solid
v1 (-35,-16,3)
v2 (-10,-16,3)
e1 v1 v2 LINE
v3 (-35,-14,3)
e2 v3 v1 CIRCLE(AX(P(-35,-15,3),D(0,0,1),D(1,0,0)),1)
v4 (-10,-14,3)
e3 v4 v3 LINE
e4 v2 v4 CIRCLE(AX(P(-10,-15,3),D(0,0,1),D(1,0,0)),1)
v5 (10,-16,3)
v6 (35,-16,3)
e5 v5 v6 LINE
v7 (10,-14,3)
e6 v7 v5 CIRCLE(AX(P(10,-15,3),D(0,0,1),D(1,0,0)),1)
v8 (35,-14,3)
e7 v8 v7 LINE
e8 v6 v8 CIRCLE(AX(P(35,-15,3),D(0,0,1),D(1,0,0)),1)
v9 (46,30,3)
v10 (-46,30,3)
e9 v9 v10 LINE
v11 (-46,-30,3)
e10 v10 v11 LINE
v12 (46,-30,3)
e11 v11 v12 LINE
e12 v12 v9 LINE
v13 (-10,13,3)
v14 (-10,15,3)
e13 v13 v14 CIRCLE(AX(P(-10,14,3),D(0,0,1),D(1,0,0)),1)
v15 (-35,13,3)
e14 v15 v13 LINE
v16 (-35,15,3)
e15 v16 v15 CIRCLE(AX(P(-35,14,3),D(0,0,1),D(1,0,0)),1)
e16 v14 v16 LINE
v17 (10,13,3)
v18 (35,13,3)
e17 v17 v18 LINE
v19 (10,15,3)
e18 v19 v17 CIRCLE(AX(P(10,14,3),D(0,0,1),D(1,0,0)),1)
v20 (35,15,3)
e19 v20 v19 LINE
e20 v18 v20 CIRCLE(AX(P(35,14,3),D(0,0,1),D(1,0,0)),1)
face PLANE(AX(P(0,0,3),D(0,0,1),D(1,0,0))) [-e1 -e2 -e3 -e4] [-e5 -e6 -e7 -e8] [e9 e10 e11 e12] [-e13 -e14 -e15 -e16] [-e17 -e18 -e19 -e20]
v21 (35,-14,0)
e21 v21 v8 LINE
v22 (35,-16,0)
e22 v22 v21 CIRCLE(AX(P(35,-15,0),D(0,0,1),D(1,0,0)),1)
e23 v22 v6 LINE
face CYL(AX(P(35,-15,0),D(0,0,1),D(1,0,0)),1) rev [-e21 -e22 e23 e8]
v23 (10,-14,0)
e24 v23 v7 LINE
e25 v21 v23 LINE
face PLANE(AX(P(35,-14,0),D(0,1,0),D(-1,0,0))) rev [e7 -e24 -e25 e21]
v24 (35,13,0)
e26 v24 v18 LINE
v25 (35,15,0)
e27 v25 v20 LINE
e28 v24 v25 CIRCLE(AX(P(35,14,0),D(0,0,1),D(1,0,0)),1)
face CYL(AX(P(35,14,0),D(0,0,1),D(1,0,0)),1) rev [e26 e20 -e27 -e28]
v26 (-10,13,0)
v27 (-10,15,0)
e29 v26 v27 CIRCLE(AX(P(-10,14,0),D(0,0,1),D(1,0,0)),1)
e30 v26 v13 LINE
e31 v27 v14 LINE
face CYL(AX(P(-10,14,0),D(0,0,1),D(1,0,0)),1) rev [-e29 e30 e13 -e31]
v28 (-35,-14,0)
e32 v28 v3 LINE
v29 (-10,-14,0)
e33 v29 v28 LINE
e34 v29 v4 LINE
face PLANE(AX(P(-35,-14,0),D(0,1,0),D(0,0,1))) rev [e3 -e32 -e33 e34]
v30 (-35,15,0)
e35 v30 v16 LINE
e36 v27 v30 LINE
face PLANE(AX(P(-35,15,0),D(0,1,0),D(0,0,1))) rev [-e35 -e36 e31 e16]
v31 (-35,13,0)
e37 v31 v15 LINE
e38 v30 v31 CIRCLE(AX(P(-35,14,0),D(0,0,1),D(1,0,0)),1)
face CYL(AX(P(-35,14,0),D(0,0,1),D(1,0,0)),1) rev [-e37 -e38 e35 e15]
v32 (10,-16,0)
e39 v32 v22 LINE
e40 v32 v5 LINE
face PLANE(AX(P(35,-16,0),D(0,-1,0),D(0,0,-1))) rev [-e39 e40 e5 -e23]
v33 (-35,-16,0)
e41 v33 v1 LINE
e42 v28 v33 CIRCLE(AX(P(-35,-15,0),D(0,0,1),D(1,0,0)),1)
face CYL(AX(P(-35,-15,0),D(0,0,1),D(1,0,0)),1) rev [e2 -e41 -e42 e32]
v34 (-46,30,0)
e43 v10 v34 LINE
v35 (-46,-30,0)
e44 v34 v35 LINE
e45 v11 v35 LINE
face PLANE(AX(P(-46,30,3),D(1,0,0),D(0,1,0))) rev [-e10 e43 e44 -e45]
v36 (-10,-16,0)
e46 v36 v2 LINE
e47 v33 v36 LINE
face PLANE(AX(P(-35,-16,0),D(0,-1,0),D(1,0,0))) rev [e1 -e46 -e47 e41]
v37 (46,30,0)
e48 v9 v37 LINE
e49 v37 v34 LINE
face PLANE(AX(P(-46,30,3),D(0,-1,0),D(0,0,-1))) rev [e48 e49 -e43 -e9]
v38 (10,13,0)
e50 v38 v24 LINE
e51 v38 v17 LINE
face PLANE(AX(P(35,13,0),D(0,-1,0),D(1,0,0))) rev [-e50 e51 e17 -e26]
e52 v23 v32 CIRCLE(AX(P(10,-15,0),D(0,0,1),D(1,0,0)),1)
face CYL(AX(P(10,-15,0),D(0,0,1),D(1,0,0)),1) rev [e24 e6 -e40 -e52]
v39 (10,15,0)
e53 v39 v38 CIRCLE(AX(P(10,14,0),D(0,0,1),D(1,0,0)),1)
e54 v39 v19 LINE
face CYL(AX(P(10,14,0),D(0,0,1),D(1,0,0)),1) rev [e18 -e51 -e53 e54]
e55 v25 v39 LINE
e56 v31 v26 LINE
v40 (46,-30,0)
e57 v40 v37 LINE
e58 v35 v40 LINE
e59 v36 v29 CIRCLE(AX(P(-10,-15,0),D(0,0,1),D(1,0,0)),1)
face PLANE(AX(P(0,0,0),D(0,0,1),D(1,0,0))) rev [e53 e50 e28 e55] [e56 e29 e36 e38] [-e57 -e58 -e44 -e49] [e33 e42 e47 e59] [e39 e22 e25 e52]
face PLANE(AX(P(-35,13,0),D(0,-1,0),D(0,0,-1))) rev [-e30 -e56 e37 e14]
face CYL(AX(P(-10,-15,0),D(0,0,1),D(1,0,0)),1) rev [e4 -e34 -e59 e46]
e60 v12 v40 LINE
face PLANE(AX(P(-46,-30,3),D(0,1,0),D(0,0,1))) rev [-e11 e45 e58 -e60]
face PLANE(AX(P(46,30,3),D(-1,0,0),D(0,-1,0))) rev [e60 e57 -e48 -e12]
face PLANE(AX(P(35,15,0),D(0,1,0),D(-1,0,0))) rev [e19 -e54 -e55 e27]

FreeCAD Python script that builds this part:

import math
import FreeCAD as App
import Part
import Sketcher
from FreeCAD import Vector
Q = App.Units.Quantity


def add_polygon(sketch, points):
    """Adds a closed chain of lines whose ends are joined by coincident constraints."""
    first, n = sketch.GeometryCount, len(points)
    for a, b in zip(points, points[1:] + points[:1]):
        sketch.addGeometry(Part.LineSegment(App.Vector(*a, 0), App.Vector(*b, 0)), False)
    for i in range(n):
        sketch.addConstraint(Sketcher.Constraint("Coincident", first + i, 2, first + (i + 1) % n, 1))

doc = App.newDocument("Part")
body = doc.addObject("PartDesign::Body", "Body")

sketch1 = body.newObject("Sketcher::SketchObject", "Sketch")
sketch1.AttachmentSupport = (doc.getObject("XY_Plane"), [""])
sketch1.MapMode = "FlatFace"
add_polygon(sketch1, [(-46, 30), (-46, -30), (46, -30), (46, 30)])
sketch1.addConstraint(Sketcher.Constraint("Vertical", 0))
sketch1.addConstraint(Sketcher.Constraint("Horizontal", 1))
sketch1.addConstraint(Sketcher.Constraint("Vertical", 2))
sketch1.addConstraint(Sketcher.Constraint("Horizontal", 3))
sketch1.addConstraint(Sketcher.Constraint("Symmetric", 0, 2, 2, 2, -1, 1))
sketch1.addConstraint(Sketcher.Constraint("DistanceX", 1, 1, 1, 2, Q("92 mm")))
sketch1.addConstraint(Sketcher.Constraint("DistanceY", 0, 2, 0, 1, Q("60 mm")))
pad1 = body.newObject("PartDesign::Pad", "Pad")
pad1.Profile = sketch1
pad1.Length = 3

sketch2 = body.newObject("Sketcher::SketchObject", "Sketch001")
sketch2.AttachmentSupport = (doc.getObject("XY_Plane"), [""])
sketch2.MapMode = "FlatFace"
sketch2.AttachmentOffset = App.Placement(Vector(0, 0, 3), App.Rotation())
sketch2.addGeometry(Part.LineSegment(Vector(-10, 15, 0), Vector(-35, 15, 0)), False)
sketch2.addGeometry(Part.ArcOfCircle(Part.Circle(Vector(-35, 14, 0), Vector(0, 0, 1), 1), math.radians(90), math.radians(270)), False)
sketch2.addGeometry(Part.LineSegment(Vector(-35, 13, 0), Vector(-10, 13, 0)), False)
sketch2.addGeometry(Part.ArcOfCircle(Part.Circle(Vector(-10, 14, 0), Vector(0, 0, 1), 1), math.radians(-90), math.radians(90)), False)
sketch2.addGeometry(Part.LineSegment(Vector(-10, -14, 0), Vector(-35, -14, 0)), False)
sketch2.addGeometry(Part.ArcOfCircle(Part.Circle(Vector(-35, -15, 0), Vector(0, 0, 1), 1), math.radians(90), math.radians(270)), False)
sketch2.addGeometry(Part.LineSegment(Vector(-35, -16, 0), Vector(-10, -16, 0)), False)
sketch2.addGeometry(Part.ArcOfCircle(Part.Circle(Vector(-10, -15, 0), Vector(0, 0, 1), 1), math.radians(-90), math.radians(90)), False)
sketch2.addGeometry(Part.LineSegment(Vector(10, 13, 0), Vector(35, 13, 0)), False)
sketch2.addGeometry(Part.ArcOfCircle(Part.Circle(Vector(35, 14, 0), Vector(0, 0, 1), 1), math.radians(-90), math.radians(90)), False)
sketch2.addGeometry(Part.LineSegment(Vector(35, 15, 0), Vector(10, 15, 0)), False)
sketch2.addGeometry(Part.ArcOfCircle(Part.Circle(Vector(10, 14, 0), Vector(0, 0, 1), 1), math.radians(90), math.radians(270)), False)
sketch2.addGeometry(Part.LineSegment(Vector(10, -16, 0), Vector(35, -16, 0)), False)
sketch2.addGeometry(Part.ArcOfCircle(Part.Circle(Vector(35, -15, 0), Vector(0, 0, 1), 1), math.radians(-90), math.radians(90)), False)
sketch2.addGeometry(Part.LineSegment(Vector(35, -14, 0), Vector(10, -14, 0)), False)
sketch2.addGeometry(Part.ArcOfCircle(Part.Circle(Vector(10, -15, 0), Vector(0, 0, 1), 1), math.radians(90), math.radians(270)), False)
sketch2.addConstraint(Sketcher.Constraint("Tangent", 0, 2, 1, 1))
sketch2.addConstraint(Sketcher.Constraint("Tangent", 1, 2, 2, 1))
sketch2.addConstraint(Sketcher.Constraint("Tangent", 2, 2, 3, 1))
sketch2.addConstraint(Sketcher.Constraint("Tangent", 3, 2, 0, 1))
sketch2.addConstraint(Sketcher.Constraint("Tangent", 4, 2, 5, 1))
sketch2.addConstraint(Sketcher.Constraint("Tangent", 5, 2, 6, 1))
sketch2.addConstraint(Sketcher.Constraint("Tangent", 6, 2, 7, 1))
sketch2.addConstraint(Sketcher.Constraint("Tangent", 7, 2, 4, 1))
sketch2.addConstraint(Sketcher.Constraint("Tangent", 8, 2, 9, 1))
sketch2.addConstraint(Sketcher.Constraint("Tangent", 9, 2, 10, 1))
sketch2.addConstraint(Sketcher.Constraint("Tangent", 10, 2, 11, 1))
sketch2.addConstraint(Sketcher.Constraint("Tangent", 11, 2, 8, 1))
sketch2.addConstraint(Sketcher.Constraint("Tangent", 12, 2, 13, 1))
sketch2.addConstraint(Sketcher.Constraint("Tangent", 13, 2, 14, 1))
sketch2.addConstraint(Sketcher.Constraint("Tangent", 14, 2, 15, 1))
sketch2.addConstraint(Sketcher.Constraint("Tangent", 15, 2, 12, 1))
sketch2.addConstraint(Sketcher.Constraint("Horizontal", 0))
sketch2.addConstraint(Sketcher.Constraint("Horizontal", 2))
sketch2.addConstraint(Sketcher.Constraint("Horizontal", 4))
sketch2.addConstraint(Sketcher.Constraint("Horizontal", 6))
sketch2.addConstraint(Sketcher.Constraint("Horizontal", 8))
sketch2.addConstraint(Sketcher.Constraint("Horizontal", 10))
sketch2.addConstraint(Sketcher.Constraint("Horizontal", 12))
sketch2.addConstraint(Sketcher.Constraint("Horizontal", 14))
sketch2.addConstraint(Sketcher.Constraint("Equal", 3, 5))
sketch2.addConstraint(Sketcher.Constraint("Equal", 7, 9))
sketch2.addConstraint(Sketcher.Constraint("Equal", 11, 13))
sketch2.addConstraint(Sketcher.Constraint("Symmetric", 1, 3, 9, 3, -2))
sketch2.addConstraint(Sketcher.Constraint("Symmetric", 5, 3, 13, 3, -2))
sketch2.addConstraint(Sketcher.Constraint("Vertical", 1, 3, 5, 3))
sketch2.addConstraint(Sketcher.Constraint("Vertical", 3, 3, 7, 3))
sketch2.addConstraint(Sketcher.Constraint("Vertical", 11, 3, 15, 3))
sketch2.addConstraint(Sketcher.Constraint("Equal", 6, 8))
sketch2.addConstraint(Sketcher.Constraint("Radius", 1, Q("1 mm")))
sketch2.addConstraint(Sketcher.Constraint("DistanceX", 0, 2, 0, 1, Q("25 mm")))
sketch2.addConstraint(Sketcher.Constraint("DistanceX", 1, 3, -1, 1, Q("35 mm")))
sketch2.addConstraint(Sketcher.Constraint("DistanceY", -1, 1, 1, 3, Q("14 mm")))
sketch2.addConstraint(Sketcher.Constraint("DistanceY", 5, 3, -1, 1, Q("15 mm")))
pocket1 = body.newObject("PartDesign::Pocket", "Pocket")
pocket1.Profile = sketch2
pocket1.Length = 3

doc.recompute()
